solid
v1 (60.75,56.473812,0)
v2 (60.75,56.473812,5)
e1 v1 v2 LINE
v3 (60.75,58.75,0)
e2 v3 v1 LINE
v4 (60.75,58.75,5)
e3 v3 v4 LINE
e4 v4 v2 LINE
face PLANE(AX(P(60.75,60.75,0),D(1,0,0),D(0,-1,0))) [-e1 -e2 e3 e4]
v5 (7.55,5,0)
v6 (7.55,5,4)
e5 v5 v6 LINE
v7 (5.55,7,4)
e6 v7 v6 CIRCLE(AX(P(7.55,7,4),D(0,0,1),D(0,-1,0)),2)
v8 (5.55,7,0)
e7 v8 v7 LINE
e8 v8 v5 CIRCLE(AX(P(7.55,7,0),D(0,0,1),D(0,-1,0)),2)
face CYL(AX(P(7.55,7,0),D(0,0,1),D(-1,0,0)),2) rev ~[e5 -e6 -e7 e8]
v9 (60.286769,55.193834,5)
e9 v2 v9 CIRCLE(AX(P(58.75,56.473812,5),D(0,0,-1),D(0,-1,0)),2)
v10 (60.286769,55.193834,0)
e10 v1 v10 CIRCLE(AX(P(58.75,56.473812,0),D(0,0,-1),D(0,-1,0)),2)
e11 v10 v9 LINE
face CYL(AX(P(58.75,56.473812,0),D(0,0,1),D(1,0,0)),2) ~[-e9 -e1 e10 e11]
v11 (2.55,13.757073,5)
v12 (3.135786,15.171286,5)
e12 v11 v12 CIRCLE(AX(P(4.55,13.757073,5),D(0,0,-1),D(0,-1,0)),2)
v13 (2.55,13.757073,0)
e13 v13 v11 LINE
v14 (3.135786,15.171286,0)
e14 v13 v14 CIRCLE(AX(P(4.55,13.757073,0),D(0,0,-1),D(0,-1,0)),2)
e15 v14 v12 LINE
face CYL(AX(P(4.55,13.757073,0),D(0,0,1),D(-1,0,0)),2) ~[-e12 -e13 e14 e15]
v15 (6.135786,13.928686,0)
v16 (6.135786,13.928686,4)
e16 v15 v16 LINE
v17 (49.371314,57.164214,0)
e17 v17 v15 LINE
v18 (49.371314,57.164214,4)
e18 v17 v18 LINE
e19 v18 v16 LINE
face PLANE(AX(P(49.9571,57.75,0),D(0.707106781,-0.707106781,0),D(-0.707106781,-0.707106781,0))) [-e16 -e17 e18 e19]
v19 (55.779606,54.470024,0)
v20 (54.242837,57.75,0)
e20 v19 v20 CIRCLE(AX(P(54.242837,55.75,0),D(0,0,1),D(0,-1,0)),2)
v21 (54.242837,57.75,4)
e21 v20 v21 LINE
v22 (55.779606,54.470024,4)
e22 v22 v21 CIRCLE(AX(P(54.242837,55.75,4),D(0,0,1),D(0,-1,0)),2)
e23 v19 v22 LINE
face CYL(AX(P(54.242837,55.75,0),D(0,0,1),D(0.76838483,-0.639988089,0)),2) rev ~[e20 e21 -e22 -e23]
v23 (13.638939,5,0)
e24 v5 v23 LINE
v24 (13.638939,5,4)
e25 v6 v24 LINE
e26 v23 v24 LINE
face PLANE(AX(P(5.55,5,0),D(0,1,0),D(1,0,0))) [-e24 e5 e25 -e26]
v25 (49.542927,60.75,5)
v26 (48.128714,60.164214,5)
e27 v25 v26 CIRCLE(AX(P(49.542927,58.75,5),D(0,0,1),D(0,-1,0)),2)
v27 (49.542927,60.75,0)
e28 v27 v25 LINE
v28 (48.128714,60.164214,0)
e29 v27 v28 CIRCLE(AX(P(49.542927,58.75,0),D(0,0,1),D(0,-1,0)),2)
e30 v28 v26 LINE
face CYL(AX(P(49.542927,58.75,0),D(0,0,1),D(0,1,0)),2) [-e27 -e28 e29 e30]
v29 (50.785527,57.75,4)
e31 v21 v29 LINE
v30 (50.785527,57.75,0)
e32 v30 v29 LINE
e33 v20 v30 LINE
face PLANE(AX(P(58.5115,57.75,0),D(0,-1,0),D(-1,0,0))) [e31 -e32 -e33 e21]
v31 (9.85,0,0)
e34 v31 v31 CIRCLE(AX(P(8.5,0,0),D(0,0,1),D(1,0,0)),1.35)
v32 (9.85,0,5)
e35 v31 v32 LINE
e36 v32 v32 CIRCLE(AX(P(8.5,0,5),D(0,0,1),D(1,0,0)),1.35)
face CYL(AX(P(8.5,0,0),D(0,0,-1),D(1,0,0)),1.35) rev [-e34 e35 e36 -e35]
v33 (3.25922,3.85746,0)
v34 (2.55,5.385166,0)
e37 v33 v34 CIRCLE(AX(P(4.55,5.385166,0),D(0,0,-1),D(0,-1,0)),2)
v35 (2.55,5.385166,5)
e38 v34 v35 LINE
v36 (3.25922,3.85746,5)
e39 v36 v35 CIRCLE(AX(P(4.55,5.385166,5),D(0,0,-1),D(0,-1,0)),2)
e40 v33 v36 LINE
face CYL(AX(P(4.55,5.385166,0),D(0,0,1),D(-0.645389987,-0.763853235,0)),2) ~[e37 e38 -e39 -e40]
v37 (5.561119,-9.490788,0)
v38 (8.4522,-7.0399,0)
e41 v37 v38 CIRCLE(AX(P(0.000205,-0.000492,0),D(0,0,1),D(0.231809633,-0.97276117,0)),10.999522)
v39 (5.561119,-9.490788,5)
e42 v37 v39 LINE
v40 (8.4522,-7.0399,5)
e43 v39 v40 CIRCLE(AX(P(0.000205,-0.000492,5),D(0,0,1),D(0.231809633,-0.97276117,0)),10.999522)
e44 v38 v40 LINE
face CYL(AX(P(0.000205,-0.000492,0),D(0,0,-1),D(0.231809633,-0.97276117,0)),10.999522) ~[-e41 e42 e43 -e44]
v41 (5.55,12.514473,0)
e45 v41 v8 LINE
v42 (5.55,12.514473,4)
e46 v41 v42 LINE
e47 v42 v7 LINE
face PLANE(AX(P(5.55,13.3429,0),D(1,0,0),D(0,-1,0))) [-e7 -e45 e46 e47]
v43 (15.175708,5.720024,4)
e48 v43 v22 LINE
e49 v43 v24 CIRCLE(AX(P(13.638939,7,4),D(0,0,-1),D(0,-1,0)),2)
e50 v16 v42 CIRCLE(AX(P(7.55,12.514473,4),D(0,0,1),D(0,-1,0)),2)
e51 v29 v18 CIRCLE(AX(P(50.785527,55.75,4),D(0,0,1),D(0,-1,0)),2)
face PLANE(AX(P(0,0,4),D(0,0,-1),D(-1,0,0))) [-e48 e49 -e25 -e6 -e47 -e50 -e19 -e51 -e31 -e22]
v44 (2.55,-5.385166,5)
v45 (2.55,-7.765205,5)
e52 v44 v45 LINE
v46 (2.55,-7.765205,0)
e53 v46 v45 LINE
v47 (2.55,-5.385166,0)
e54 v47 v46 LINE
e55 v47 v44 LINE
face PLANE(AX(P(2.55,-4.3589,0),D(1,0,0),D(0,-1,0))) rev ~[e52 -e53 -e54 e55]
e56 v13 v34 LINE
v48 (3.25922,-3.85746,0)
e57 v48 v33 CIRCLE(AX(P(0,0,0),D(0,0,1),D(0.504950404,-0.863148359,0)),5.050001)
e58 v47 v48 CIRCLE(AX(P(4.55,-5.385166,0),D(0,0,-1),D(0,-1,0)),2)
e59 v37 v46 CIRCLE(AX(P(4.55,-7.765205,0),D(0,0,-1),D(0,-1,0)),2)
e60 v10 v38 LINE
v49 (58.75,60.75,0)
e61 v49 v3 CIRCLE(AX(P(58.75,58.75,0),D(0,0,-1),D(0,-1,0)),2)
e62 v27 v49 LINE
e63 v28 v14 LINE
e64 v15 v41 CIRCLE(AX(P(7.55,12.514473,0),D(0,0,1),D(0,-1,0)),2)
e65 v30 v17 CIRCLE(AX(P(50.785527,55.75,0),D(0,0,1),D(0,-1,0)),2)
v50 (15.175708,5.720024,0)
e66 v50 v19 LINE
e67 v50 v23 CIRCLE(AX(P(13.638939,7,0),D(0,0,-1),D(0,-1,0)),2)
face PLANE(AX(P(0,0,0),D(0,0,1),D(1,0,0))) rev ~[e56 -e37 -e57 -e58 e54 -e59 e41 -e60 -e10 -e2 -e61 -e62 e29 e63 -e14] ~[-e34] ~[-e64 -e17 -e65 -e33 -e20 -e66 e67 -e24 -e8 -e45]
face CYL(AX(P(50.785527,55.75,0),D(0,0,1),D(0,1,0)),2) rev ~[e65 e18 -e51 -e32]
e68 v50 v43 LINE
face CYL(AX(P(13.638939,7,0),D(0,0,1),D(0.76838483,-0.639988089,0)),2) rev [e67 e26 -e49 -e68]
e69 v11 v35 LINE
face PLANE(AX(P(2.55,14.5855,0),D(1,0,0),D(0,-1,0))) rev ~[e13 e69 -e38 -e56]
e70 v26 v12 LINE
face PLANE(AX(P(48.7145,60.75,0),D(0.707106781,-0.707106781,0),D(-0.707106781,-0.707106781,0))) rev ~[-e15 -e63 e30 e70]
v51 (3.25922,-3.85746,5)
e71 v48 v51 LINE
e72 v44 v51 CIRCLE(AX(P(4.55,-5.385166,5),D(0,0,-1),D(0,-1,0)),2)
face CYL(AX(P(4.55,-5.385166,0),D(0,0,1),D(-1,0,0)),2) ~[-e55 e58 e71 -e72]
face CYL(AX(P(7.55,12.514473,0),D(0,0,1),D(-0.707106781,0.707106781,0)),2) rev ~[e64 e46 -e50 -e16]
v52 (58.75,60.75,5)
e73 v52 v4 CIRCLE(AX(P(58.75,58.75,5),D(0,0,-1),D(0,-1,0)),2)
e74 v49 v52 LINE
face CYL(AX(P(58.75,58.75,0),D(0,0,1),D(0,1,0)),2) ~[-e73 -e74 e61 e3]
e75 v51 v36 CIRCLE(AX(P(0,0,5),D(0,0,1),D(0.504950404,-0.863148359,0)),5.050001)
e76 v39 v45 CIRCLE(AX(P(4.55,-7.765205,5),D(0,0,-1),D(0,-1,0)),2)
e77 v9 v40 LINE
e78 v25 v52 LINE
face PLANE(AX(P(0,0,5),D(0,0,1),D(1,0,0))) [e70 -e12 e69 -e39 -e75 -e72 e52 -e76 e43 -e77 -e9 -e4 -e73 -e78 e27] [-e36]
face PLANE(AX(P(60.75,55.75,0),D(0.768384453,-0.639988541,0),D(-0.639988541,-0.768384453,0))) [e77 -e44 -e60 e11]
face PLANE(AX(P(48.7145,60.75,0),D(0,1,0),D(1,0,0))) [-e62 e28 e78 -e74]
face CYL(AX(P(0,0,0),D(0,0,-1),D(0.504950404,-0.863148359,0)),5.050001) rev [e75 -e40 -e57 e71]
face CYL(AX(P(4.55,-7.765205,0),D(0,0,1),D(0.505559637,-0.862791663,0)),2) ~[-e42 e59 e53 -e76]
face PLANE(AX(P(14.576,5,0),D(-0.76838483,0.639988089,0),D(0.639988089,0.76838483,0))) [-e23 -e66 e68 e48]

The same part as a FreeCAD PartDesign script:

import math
import FreeCAD as App
import Part
import Sketcher
Q = App.Units.Quantity


def edges_at(feature, points):
    """Names of the edges that pass closest to the given points."""
    edges = feature.Shape.Edges
    near = lambda p: min(range(len(edges)), key=lambda i: edges[i].distToShape(Part.Vertex(*p))[0])
    return sorted({f"Edge{near(p) + 1}" for p in points})


def add_polygon(sketch, points):
    """Adds a closed chain of lines whose ends are joined by coincident constraints."""
    first, n = sketch.GeometryCount, len(points)
    for a, b in zip(points, points[1:] + points[:1]):
        sketch.addGeometry(Part.LineSegment(App.Vector(*a, 0), App.Vector(*b, 0)), False)
    for i in range(n):
        sketch.addConstraint(Sketcher.Constraint("Coincident", first + i, 2, first + (i + 1) % n, 1))

doc = App.newDocument("Part")
body = doc.addObject("PartDesign::Body", "Body")

# Sketch on XY plane
sketch1 = body.newObject("Sketcher::SketchObject", "Sketch")
sketch1.AttachmentSupport = (doc.getObject("XY_Plane"), [""])
sketch1.MapMode = "FlatFace"
sketch1.addGeometry(Part.LineSegment(App.Vector(60.8, 60.8, 0), App.Vector(48.7, 60.8, 0)), False)
sketch1.addGeometry(Part.LineSegment(App.Vector(48.7, 60.8, 0), App.Vector(2.5, 14.6, 0)), False)
sketch1.addGeometry(Part.LineSegment(App.Vector(2.5, 14.6, 0), App.Vector(2.5, 4.4, 0)), False)
sketch1.addGeometry(Part.ArcOfCircle(Part.Circle(App.Vector(0, 0, 0), App.Vector(0, 0, 1), 5.1), math.radians(-60), math.radians(60)), False)
sketch1.addGeometry(Part.LineSegment(App.Vector(2.5, -4.4, 0), App.Vector(2.5, -10.7, 0)), False)
sketch1.addGeometry(Part.ArcOfCircle(Part.Circle(App.Vector(0, 0, 0), App.Vector(0, 0, 1), 11), math.radians(-77), math.radians(-40)), False)
sketch1.addGeometry(Part.LineSegment(App.Vector(8.5, -7, 0), App.Vector(60.8, 55.8, 0)), False)
sketch1.addGeometry(Part.LineSegment(App.Vector(60.8, 55.8, 0), App.Vector(60.8, 60.8, 0)), False)
sketch1.addGeometry(Part.Circle(App.Vector(8.5, 0, 0), App.Vector(0, 0, 1), 1.4), False)
sketch1.addConstraint(Sketcher.Constraint("Coincident", 0, 2, 1, 1))
sketch1.addConstraint(Sketcher.Constraint("Coincident", 1, 2, 2, 1))
sketch1.addConstraint(Sketcher.Constraint("Coincident", 2, 2, 3, 2))
sketch1.addConstraint(Sketcher.Constraint("Coincident", 3, 1, 4, 1))
sketch1.addConstraint(Sketcher.Constraint("Coincident", 4, 2, 5, 1))
sketch1.addConstraint(Sketcher.Constraint("Tangent", 5, 2, 6, 1))
sketch1.addConstraint(Sketcher.Constraint("Coincident", 6, 2, 7, 1))
sketch1.addConstraint(Sketcher.Constraint("Coincident", 7, 2, 0, 1))
sketch1.addConstraint(Sketcher.Constraint("Horizontal", 0))
sketch1.addConstraint(Sketcher.Constraint("Vertical", 2))
sketch1.addConstraint(Sketcher.Constraint("Vertical", 4))
sketch1.addConstraint(Sketcher.Constraint("Vertical", 7))
sketch1.addConstraint(Sketcher.Constraint("Coincident", 3, 3, -1, 1))
sketch1.addConstraint(Sketcher.Constraint("Coincident", 5, 3, -1, 1))
sketch1.addConstraint(Sketcher.Constraint("PointOnObject", 8, 3, -1))
sketch1.addConstraint(Sketcher.Constraint("Vertical", 2, 2, 3, 1))
sketch1.addConstraint(Sketcher.Constraint("Diameter", 8, 2.7))
sketch1.addConstraint(Sketcher.Constraint("DistanceY", 7, 1, 7, 2, 5.0))
sketch1.addConstraint(Sketcher.Constraint("Radius", 3, 5.05))
sketch1.addConstraint(Sketcher.Constraint("Radius", 5, 11.0))
sketch1.addConstraint(Sketcher.Constraint("DistanceX", -1, 1, 8, 3, 8.5))
sketch1.addConstraint(Sketcher.Constraint("DistanceY", -1, 1, 0, 2, 60.75))
sketch1.addConstraint(Sketcher.Constraint("DistanceX", -1, 1, 1, 2, 2.55))
sketch1.addConstraint(Sketcher.Constraint("DistanceX", -1, 1, 6, 2, 60.75))
sketch1.addConstraint(Sketcher.Constraint("Angle", 1, Q("-135 deg")))
sketch1.addConstraint(Sketcher.Constraint("DistanceX", 0, 2, 0, 1, 12.0355))
pad1 = body.newObject("PartDesign::Pad", "Pad")
pad1.Profile = sketch1
pad1.Length = 5
doc.recompute()

fillet = body.newObject("PartDesign::Fillet", "Fillet")
fillet.Base = (pad1, edges_at(pad1, [
    (2.55, -10.7, 2.5),
    (2.55, -4.359, 2.5),
    (2.55, 14.585, 2.5),
    (60.75, 60.75, 2.5),
    (60.75, 55.75, 2.5),
    (48.715, 60.75, 2.5),
    (2.55, 4.359, 2.5),
]))
fillet.Radius = 2

# Sketch on XY plane
sketch2 = body.newObject("Sketcher::SketchObject", "Sketch001")
sketch2.AttachmentSupport = (doc.getObject("XY_Plane"), [""])
sketch2.MapMode = "FlatFace"
add_polygon(sketch2, [(59, 58), (15, 5), (6, 5), (6, 13), (50, 58)])  # lines 0-4
sketch2.addConstraint(Sketcher.Constraint("Horizontal", 1))
sketch2.addConstraint(Sketcher.Constraint("Vertical", 2))
sketch2.addConstraint(Sketcher.Constraint("Horizontal", 4))
sketch2.addConstraint(Sketcher.Constraint("DistanceY", -1, 1, 0, 2, 5.0))
sketch2.addConstraint(Sketcher.Constraint("Angle", 3, Q("45 deg")))
sketch2.addConstraint(Sketcher.Constraint("Angle", 0, Q("-129.791 deg")))
sketch2.addConstraint(Sketcher.Constraint("DistanceX", 1, 2, 1, 1, 9.026))
sketch2.addConstraint(Sketcher.Constraint("DistanceY", 2, 1, 2, 2, 8.343))
sketch2.addConstraint(Sketcher.Constraint("DistanceX", -1, 1, 1, 2, 5.55))
sketch2.addConstraint(Sketcher.Constraint("DistanceY", -1, 1, 3, 2, 57.75))
pocket1 = body.newObject("PartDesign::Pocket", "Pocket")
pocket1.Profile = sketch2
pocket1.Length = 4
pocket1.Reversed = True
doc.recompute()

fillet2 = body.newObject("PartDesign::Fillet", "Fillet001")
fillet2.Base = (pocket1, edges_at(pocket1, [
    (58.511, 57.75, 2),
    (49.957, 57.75, 2),
    (5.55, 5, 2),
    (14.576, 5, 2),
    (5.55, 13.343, 2),
]))
fillet2.Radius = 2

doc.recompute()
